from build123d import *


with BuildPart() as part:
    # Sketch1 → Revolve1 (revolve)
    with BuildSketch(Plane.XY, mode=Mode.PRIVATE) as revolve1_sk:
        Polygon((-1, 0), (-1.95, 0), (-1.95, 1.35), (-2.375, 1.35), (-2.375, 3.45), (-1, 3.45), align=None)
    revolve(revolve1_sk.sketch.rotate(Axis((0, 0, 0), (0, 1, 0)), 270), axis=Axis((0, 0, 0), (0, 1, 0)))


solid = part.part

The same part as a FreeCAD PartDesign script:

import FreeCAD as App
import Part
import Sketcher

V = App.Vector
Q = App.Units.Quantity

doc = App.newDocument("Part")
body = doc.addObject("PartDesign::Body", "Body")

sketch1 = doc.addObject("Sketcher::SketchObject", "Sketch")
body.addObject(sketch1)
sketch1.AttachmentSupport = (doc.XY_Plane, [""])
sketch1.MapMode = "FlatFace"
sketch1.addGeometry([
    Part.LineSegment(V(-1.95, 0, 0), V(-1, 0, 0)),
    Part.LineSegment(V(-1, 0, 0), V(-1, 3.45, 0)),
    Part.LineSegment(V(-1, 3.45, 0), V(-2.38, 3.45, 0)),
    Part.LineSegment(V(-2.38, 3.45, 0), V(-2.38, 1.35, 0)),
    Part.LineSegment(V(-2.38, 1.35, 0), V(-1.95, 1.35, 0)),
    Part.LineSegment(V(-1.95, 1.35, 0), V(-1.95, 0, 0)),
], False)
sketch1.addConstraint([
    Sketcher.Constraint("Coincident", 0, 2, 1, 1),
    Sketcher.Constraint("Coincident", 1, 2, 2, 1),
    Sketcher.Constraint("Coincident", 2, 2, 3, 1),
    Sketcher.Constraint("Coincident", 3, 2, 4, 1),
    Sketcher.Constraint("Coincident", 4, 2, 5, 1),
    Sketcher.Constraint("Coincident", 5, 2, 0, 1),
    Sketcher.Constraint("Horizontal", 0),
    Sketcher.Constraint("Vertical", 1),
    Sketcher.Constraint("Horizontal", 2),
    Sketcher.Constraint("Vertical", 3),
    Sketcher.Constraint("Horizontal", 4),
    Sketcher.Constraint("Vertical", 5),
    Sketcher.Constraint("PointOnObject", 0, 2, -1),
    Sketcher.Constraint("DistanceY", 3, 2, 3, 1, Q("2.1 mm")),
    Sketcher.Constraint("DistanceX", 0, 2, -1, 1, Q("1 mm")),
    Sketcher.Constraint("DistanceX", 0, 1, 0, 2, Q("0.95 mm")),
    Sketcher.Constraint("DistanceY", 1, 1, 1, 2, Q("3.45 mm")),
    Sketcher.Constraint("DistanceX", 2, 2, 2, 1, Q("1.375 mm")),
])
revolution = doc.addObject("PartDesign::Revolution", "Revolution")
body.addObject(revolution)
revolution.Profile = sketch1
revolution.ReferenceAxis = (sketch1, ["V_Axis"])
revolution.Angle = 360

doc.recompute()
